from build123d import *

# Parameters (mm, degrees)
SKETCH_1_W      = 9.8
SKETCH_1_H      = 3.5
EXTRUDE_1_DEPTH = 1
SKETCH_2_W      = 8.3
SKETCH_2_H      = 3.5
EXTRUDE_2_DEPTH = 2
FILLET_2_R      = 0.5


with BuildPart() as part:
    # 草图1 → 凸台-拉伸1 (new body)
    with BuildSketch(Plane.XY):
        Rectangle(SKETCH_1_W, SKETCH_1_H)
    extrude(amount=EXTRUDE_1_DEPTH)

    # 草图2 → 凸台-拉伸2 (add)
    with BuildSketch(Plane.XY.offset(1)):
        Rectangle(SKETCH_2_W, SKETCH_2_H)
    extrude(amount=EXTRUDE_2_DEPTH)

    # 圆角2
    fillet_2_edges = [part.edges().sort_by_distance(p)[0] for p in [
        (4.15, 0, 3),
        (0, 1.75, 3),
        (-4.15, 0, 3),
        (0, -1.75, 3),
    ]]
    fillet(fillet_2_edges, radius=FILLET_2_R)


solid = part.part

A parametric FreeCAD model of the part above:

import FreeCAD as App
import Part
import Sketcher
from FreeCAD import Vector
Q = App.Units.Quantity


def edges_at(feature, points):
    """Names of the edges that pass closest to the given points."""
    edges = feature.Shape.Edges
    near = lambda p: min(range(len(edges)), key=lambda i: edges[i].distToShape(Part.Vertex(*p))[0])
    return sorted({f"Edge{near(p) + 1}" for p in points})


def add_polygon(sketch, points):
    """Adds a closed chain of lines whose ends are joined by coincident constraints."""
    first, n = sketch.GeometryCount, len(points)
    for a, b in zip(points, points[1:] + points[:1]):
        sketch.addGeometry(Part.LineSegment(App.Vector(*a, 0), App.Vector(*b, 0)), False)
    for i in range(n):
        sketch.addConstraint(Sketcher.Constraint("Coincident", first + i, 2, first + (i + 1) % n, 1))

doc = App.newDocument("Part")
body = doc.addObject("PartDesign::Body", "Body")

# Sketch on XY plane
sketch1 = doc.addObject("Sketcher::SketchObject", "Sketch")
body.addObject(sketch1)
sketch1.AttachmentSupport = (doc.XY_Plane, [""])
sketch1.MapMode = "FlatFace"
add_polygon(sketch1, [(-4.9, 1.8), (-4.9, -1.8), (4.9, -1.8), (4.9, 1.8)])  # lines 0-3
sketch1.addConstraint(Sketcher.Constraint("Vertical", 0))
sketch1.addConstraint(Sketcher.Constraint("Horizontal", 1))
sketch1.addConstraint(Sketcher.Constraint("Vertical", 2))
sketch1.addConstraint(Sketcher.Constraint("Horizontal", 3))
sketch1.addConstraint(Sketcher.Constraint("Symmetric", 0, 2, 2, 2, -1, 1))
sketch1.addConstraint(Sketcher.Constraint("DistanceX", 1, 1, 1, 2, Q("9.8 mm")))
sketch1.addConstraint(Sketcher.Constraint("DistanceY", 0, 2, 0, 1, Q("3.5 mm")))
pad1 = doc.addObject("PartDesign::Pad", "Pad")
body.addObject(pad1)
pad1.Profile = sketch1
pad1.Length = 1

# Sketch on XY plane
sketch2 = doc.addObject("Sketcher::SketchObject", "Sketch001")
body.addObject(sketch2)
sketch2.AttachmentSupport = (doc.XY_Plane, [""])
sketch2.MapMode = "FlatFace"
sketch2.AttachmentOffset = App.Placement(Vector(0, 0, 1), App.Rotation())
add_polygon(sketch2, [(-4.2, 1.8), (-4.2, -1.8), (4.2, -1.8), (4.2, 1.8)])  # lines 0-3
sketch2.addConstraint(Sketcher.Constraint("Vertical", 0))
sketch2.addConstraint(Sketcher.Constraint("Horizontal", 1))
sketch2.addConstraint(Sketcher.Constraint("Vertical", 2))
sketch2.addConstraint(Sketcher.Constraint("Horizontal", 3))
sketch2.addConstraint(Sketcher.Constraint("Symmetric", 0, 2, 2, 2, -1, 1))
sketch2.addConstraint(Sketcher.Constraint("DistanceX", 1, 1, 1, 2, Q("8.3 mm")))
sketch2.addConstraint(Sketcher.Constraint("DistanceY", 0, 2, 0, 1, Q("3.5 mm")))
pad2 = doc.addObject("PartDesign::Pad", "Pad001")
body.addObject(pad2)
pad2.Profile = sketch2
pad2.Length = 2
doc.recompute()

fillet = doc.addObject("PartDesign::Fillet", "Fillet")
body.addObject(fillet)
fillet.Base = (pad2, edges_at(pad2, [
    (4.15, 0, 3),
    (0, 1.75, 3),
    (-4.15, 0, 3),
    (0, -1.75, 3),
]))
fillet.Radius = 0.5

doc.recompute()
